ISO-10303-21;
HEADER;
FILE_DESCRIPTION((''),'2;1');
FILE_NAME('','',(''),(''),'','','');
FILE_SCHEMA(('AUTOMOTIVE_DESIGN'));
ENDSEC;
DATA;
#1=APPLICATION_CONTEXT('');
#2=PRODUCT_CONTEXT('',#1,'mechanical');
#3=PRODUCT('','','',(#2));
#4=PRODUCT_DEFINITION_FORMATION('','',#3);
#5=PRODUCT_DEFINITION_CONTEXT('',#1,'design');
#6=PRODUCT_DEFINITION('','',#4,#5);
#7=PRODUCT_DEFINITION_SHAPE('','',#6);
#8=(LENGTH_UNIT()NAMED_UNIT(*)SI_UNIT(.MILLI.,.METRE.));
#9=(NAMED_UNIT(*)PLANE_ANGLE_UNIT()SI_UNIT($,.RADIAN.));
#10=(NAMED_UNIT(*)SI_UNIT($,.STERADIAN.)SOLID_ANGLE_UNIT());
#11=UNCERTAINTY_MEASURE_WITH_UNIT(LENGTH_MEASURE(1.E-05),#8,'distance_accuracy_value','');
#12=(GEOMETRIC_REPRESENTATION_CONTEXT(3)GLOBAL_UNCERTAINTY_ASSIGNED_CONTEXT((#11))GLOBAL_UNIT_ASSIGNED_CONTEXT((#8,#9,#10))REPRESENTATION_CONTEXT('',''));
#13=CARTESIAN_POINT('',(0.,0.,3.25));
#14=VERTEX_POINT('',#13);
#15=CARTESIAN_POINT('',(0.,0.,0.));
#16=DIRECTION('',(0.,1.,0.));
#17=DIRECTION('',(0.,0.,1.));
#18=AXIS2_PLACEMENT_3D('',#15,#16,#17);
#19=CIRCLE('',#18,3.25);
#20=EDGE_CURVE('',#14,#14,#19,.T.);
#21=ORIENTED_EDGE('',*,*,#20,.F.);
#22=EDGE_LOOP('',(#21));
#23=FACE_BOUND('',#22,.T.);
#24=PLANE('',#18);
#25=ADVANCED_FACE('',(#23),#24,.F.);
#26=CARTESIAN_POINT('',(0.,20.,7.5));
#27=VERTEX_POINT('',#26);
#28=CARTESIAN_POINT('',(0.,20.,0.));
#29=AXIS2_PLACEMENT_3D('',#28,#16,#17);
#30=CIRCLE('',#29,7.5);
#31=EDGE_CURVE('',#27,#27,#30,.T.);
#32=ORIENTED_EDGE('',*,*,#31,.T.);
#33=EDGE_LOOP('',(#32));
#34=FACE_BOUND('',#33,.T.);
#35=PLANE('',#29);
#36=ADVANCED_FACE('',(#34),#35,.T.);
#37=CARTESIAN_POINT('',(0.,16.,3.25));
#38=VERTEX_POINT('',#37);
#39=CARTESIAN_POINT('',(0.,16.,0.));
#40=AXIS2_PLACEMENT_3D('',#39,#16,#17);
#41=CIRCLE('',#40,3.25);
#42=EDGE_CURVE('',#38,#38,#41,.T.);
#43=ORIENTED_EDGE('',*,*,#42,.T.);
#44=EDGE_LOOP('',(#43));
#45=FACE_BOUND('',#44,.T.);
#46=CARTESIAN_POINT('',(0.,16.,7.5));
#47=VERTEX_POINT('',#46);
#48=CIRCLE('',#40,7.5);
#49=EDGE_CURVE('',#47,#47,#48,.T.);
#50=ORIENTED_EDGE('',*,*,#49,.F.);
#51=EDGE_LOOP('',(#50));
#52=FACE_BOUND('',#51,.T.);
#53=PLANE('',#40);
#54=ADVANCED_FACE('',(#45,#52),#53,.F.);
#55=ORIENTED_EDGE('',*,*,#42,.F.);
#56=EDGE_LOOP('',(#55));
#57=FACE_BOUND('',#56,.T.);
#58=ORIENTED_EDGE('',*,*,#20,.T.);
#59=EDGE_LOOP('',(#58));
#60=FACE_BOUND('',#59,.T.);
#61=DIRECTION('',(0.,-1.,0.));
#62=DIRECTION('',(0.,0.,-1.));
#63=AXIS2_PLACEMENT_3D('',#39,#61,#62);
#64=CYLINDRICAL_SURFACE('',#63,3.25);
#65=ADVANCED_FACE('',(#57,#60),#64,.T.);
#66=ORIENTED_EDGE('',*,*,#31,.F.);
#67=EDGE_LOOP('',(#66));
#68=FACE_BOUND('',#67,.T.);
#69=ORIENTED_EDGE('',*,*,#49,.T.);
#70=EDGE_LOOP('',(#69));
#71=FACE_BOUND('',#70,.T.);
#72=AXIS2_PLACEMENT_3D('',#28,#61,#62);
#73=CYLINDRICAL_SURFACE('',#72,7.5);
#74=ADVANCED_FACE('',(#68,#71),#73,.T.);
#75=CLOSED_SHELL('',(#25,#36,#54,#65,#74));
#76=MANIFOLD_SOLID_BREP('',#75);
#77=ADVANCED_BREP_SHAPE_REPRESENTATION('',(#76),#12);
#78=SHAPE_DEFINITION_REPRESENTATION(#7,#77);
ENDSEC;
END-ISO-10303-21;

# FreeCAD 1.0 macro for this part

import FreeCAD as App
import Part
import Sketcher
from FreeCAD import Vector

doc = App.newDocument("Part")
body = doc.addObject("PartDesign::Body", "Body")

# Sketch on XZ plane
sketch1 = doc.addObject("Sketcher::SketchObject", "Sketch")
body.addObject(sketch1)
sketch1.AttachmentSupport = (doc.XZ_Plane, [""])
sketch1.MapMode = "FlatFace"
sketch1.addGeometry(Part.Circle(Vector(0, 0, 0), Vector(0, 0, 1), 3.2), False)
sketch1.addConstraint(Sketcher.Constraint("Coincident", 0, 3, -1, 1))
sketch1.addConstraint(Sketcher.Constraint("Diameter", 0, 6.5))
pad1 = doc.addObject("PartDesign::Pad", "Pad")
body.addObject(pad1)
pad1.Profile = sketch1
pad1.Length = 16
pad1.Reversed = True

# Sketch on XZ plane
sketch2 = doc.addObject("Sketcher::SketchObject", "Sketch001")
body.addObject(sketch2)
sketch2.AttachmentSupport = (doc.XZ_Plane, [""])
sketch2.MapMode = "FlatFace"
sketch2.AttachmentOffset = App.Placement(Vector(0, 0, -16), App.Rotation())
sketch2.addGeometry(Part.Circle(Vector(0, 0, 0), Vector(0, 0, 1), 8), False)
sketch2.addConstraint(Sketcher.Constraint("Coincident", 0, 3, -1, 1))
sketch2.addConstraint(Sketcher.Constraint("Diameter", 0, 15.0))
pad2 = doc.addObject("PartDesign::Pad", "Pad001")
body.addObject(pad2)
pad2.Profile = sketch2
pad2.Length = 4
pad2.Reversed = True

doc.recompute()
